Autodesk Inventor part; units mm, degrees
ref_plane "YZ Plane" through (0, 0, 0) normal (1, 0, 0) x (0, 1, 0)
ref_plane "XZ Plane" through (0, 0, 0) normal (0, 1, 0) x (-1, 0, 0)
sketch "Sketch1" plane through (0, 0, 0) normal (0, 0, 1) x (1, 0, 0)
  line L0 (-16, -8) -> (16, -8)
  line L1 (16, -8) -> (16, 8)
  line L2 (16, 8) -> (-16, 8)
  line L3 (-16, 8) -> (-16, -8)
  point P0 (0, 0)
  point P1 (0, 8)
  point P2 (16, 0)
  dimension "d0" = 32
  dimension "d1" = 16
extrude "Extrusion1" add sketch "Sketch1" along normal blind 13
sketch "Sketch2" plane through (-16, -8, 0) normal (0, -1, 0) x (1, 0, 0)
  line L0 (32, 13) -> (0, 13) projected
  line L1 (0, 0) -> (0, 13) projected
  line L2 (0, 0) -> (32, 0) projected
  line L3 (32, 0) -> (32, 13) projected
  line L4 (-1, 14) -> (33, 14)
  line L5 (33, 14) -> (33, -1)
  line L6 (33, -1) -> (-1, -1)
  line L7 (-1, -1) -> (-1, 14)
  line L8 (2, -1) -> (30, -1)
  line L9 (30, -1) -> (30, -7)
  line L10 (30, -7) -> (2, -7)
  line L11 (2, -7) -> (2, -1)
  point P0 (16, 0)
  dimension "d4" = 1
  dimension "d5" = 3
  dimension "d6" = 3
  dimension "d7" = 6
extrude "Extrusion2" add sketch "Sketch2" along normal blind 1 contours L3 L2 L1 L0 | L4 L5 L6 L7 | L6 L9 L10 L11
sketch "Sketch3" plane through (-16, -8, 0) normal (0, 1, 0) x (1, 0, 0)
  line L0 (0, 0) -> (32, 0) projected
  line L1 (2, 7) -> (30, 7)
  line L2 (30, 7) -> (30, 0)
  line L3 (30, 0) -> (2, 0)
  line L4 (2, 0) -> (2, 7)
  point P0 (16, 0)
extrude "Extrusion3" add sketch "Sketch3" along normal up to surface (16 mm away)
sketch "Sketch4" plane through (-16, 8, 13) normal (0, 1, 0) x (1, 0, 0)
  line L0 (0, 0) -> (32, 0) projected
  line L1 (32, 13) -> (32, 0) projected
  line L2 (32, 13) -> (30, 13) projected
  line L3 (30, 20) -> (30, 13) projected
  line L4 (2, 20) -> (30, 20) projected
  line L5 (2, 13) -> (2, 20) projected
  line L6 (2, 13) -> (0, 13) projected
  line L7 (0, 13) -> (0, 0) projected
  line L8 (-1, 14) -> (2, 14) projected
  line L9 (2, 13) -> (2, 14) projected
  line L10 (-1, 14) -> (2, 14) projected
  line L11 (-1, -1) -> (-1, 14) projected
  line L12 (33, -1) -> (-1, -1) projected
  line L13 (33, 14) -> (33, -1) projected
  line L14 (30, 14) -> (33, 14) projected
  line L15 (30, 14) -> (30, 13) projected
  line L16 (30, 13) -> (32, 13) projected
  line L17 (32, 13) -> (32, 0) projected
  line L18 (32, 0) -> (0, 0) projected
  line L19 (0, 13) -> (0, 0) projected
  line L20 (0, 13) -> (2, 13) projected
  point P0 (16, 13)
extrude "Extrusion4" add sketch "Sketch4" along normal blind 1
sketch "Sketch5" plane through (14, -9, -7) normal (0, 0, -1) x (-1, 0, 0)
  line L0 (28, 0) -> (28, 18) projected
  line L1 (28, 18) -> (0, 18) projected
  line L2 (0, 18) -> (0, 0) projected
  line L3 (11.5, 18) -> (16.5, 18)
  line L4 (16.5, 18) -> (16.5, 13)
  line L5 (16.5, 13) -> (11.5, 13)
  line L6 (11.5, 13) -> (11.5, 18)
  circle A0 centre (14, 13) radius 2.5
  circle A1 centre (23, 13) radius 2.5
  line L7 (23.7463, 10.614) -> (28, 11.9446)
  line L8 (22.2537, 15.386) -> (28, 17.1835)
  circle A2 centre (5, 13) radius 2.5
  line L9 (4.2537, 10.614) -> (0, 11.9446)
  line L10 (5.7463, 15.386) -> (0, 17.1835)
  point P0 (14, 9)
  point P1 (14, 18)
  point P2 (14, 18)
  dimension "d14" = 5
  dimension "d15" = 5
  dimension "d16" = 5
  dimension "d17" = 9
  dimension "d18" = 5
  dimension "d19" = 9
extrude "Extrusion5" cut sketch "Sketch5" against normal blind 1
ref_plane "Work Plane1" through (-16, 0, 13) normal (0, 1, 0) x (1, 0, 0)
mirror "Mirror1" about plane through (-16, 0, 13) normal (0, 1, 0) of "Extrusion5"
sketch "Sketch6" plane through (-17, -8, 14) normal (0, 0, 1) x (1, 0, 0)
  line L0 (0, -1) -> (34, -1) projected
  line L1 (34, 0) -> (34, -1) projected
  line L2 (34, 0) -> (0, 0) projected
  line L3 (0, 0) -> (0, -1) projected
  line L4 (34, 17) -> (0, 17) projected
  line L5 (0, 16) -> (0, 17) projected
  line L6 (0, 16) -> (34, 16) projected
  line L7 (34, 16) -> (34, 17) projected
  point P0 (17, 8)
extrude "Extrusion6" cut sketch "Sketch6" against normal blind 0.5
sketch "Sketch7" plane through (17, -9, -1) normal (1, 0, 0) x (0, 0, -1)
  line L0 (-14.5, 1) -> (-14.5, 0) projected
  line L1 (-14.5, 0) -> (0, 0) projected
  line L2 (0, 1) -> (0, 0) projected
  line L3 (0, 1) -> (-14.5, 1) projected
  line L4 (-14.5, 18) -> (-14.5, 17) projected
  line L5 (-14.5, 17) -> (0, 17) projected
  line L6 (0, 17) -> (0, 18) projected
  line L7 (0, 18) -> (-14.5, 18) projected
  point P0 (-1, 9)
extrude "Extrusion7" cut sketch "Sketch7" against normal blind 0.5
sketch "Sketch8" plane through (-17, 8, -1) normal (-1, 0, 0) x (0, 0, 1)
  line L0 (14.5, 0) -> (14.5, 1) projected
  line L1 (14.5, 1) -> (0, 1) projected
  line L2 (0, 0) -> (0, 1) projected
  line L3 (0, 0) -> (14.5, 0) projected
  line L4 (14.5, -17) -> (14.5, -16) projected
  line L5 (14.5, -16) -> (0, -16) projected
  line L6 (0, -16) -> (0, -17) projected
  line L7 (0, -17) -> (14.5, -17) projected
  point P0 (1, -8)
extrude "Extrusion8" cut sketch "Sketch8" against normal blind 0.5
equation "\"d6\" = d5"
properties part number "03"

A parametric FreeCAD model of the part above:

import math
import FreeCAD as App
import Part
import Sketcher
Q = App.Units.Quantity

doc = App.newDocument("Part")
body = doc.addObject("PartDesign::Body", "Body")

sketch1 = body.newObject("Sketcher::SketchObject", "Sketch")
sketch1.AttachmentSupport = (doc.getObject("XY_Plane"), [""])
sketch1.MapMode = "FlatFace"
sketch1.addGeometry(Part.LineSegment(App.Vector(-16, 8, 0), App.Vector(-16, -8, 0)), False)
sketch1.addGeometry(Part.LineSegment(App.Vector(-16, -8, 0), App.Vector(16, -8, 0)), False)
sketch1.addGeometry(Part.LineSegment(App.Vector(16, -8, 0), App.Vector(16, 8, 0)), False)
sketch1.addGeometry(Part.LineSegment(App.Vector(16, 8, 0), App.Vector(-16, 8, 0)), False)
sketch1.addConstraint(Sketcher.Constraint("Coincident", 0, 2, 1, 1))
sketch1.addConstraint(Sketcher.Constraint("Coincident", 1, 2, 2, 1))
sketch1.addConstraint(Sketcher.Constraint("Coincident", 2, 2, 3, 1))
sketch1.addConstraint(Sketcher.Constraint("Coincident", 3, 2, 0, 1))
sketch1.addConstraint(Sketcher.Constraint("Vertical", 0))
sketch1.addConstraint(Sketcher.Constraint("Horizontal", 1))
sketch1.addConstraint(Sketcher.Constraint("Vertical", 2))
sketch1.addConstraint(Sketcher.Constraint("Horizontal", 3))
sketch1.addConstraint(Sketcher.Constraint("Symmetric", 0, 2, 2, 2, -1, 1))
sketch1.addConstraint(Sketcher.Constraint("DistanceX", 1, 1, 1, 2, Q("32 mm")))
sketch1.addConstraint(Sketcher.Constraint("DistanceY", 0, 2, 0, 1, Q("16 mm")))
pad1 = body.newObject("PartDesign::Pad", "Pad")
pad1.Profile = sketch1
pad1.Length = 13

sketch2 = body.newObject("Sketcher::SketchObject", "Sketch001")
sketch2.AttachmentSupport = (doc.getObject("XZ_Plane"), [""])
sketch2.MapMode = "FlatFace"
sketch2.AttachmentOffset = App.Placement(App.Vector(0, 0, 8), App.Rotation())
sketch2.addGeometry(Part.LineSegment(App.Vector(17, 14, 0), App.Vector(-17, 14, 0)), False)
sketch2.addGeometry(Part.LineSegment(App.Vector(-17, 14, 0), App.Vector(-17, -1, 0)), False)
sketch2.addGeometry(Part.LineSegment(App.Vector(-17, -1, 0), App.Vector(-14, -1, 0)), False)
sketch2.addGeometry(Part.LineSegment(App.Vector(-14, -1, 0), App.Vector(-14, -7, 0)), False)
sketch2.addGeometry(Part.LineSegment(App.Vector(-14, -7, 0), App.Vector(14, -7, 0)), False)
sketch2.addGeometry(Part.LineSegment(App.Vector(14, -7, 0), App.Vector(14, -1, 0)), False)
sketch2.addGeometry(Part.LineSegment(App.Vector(14, -1, 0), App.Vector(17, -1, 0)), False)
sketch2.addGeometry(Part.LineSegment(App.Vector(17, -1, 0), App.Vector(17, 14, 0)), False)
sketch2.addConstraint(Sketcher.Constraint("Coincident", 0, 2, 1, 1))
sketch2.addConstraint(Sketcher.Constraint("Coincident", 1, 2, 2, 1))
sketch2.addConstraint(Sketcher.Constraint("Coincident", 2, 2, 3, 1))
sketch2.addConstraint(Sketcher.Constraint("Coincident", 3, 2, 4, 1))
sketch2.addConstraint(Sketcher.Constraint("Coincident", 4, 2, 5, 1))
sketch2.addConstraint(Sketcher.Constraint("Coincident", 5, 2, 6, 1))
sketch2.addConstraint(Sketcher.Constraint("Coincident", 6, 2, 7, 1))
sketch2.addConstraint(Sketcher.Constraint("Coincident", 7, 2, 0, 1))
sketch2.addConstraint(Sketcher.Constraint("Horizontal", 0))
sketch2.addConstraint(Sketcher.Constraint("Vertical", 1))
sketch2.addConstraint(Sketcher.Constraint("Horizontal", 2))
sketch2.addConstraint(Sketcher.Constraint("Vertical", 3))
sketch2.addConstraint(Sketcher.Constraint("Horizontal", 4))
sketch2.addConstraint(Sketcher.Constraint("Vertical", 5))
sketch2.addConstraint(Sketcher.Constraint("Horizontal", 6))
sketch2.addConstraint(Sketcher.Constraint("Vertical", 7))
sketch2.addConstraint(Sketcher.Constraint("Symmetric", 2, 2, 5, 2, -2))
sketch2.addConstraint(Sketcher.Constraint("Equal", 2, 6))
sketch2.addConstraint(Sketcher.Constraint("DistanceX", 2, 1, 2, 2, Q("3 mm")))
sketch2.addConstraint(Sketcher.Constraint("DistanceY", 3, 2, 3, 1, Q("6 mm")))
sketch2.addConstraint(Sketcher.Constraint("DistanceY", 1, 2, -1, 1, Q("1 mm")))
sketch2.addConstraint(Sketcher.Constraint("DistanceX", 0, 2, 0, 1, Q("34 mm")))
sketch2.addConstraint(Sketcher.Constraint("DistanceY", 1, 2, 1, 1, Q("15 mm")))
pad2 = body.newObject("PartDesign::Pad", "Pad001")
pad2.Profile = sketch2
pad2.Length = 1

sketch3 = body.newObject("Sketcher::SketchObject", "Sketch002")
sketch3.AttachmentSupport = (doc.getObject("XZ_Plane"), [""])
sketch3.MapMode = "FlatFace"
sketch3.AttachmentOffset = App.Placement(App.Vector(0, 0, 8), App.Rotation())
sketch3.addGeometry(Part.LineSegment(App.Vector(-14, -7, 0), App.Vector(-14, 0, 0)), False)
sketch3.addGeometry(Part.LineSegment(App.Vector(-14, 0, 0), App.Vector(14, 0, 0)), False)
sketch3.addGeometry(Part.LineSegment(App.Vector(14, 0, 0), App.Vector(14, -7, 0)), False)
sketch3.addGeometry(Part.LineSegment(App.Vector(14, -7, 0), App.Vector(-14, -7, 0)), False)
sketch3.addConstraint(Sketcher.Constraint("Coincident", 0, 2, 1, 1))
sketch3.addConstraint(Sketcher.Constraint("Coincident", 1, 2, 2, 1))
sketch3.addConstraint(Sketcher.Constraint("Coincident", 2, 2, 3, 1))
sketch3.addConstraint(Sketcher.Constraint("Coincident", 3, 2, 0, 1))
sketch3.addConstraint(Sketcher.Constraint("Vertical", 0))
sketch3.addConstraint(Sketcher.Constraint("Horizontal", 1))
sketch3.addConstraint(Sketcher.Constraint("Vertical", 2))
sketch3.addConstraint(Sketcher.Constraint("Horizontal", 3))
sketch3.addConstraint(Sketcher.Constraint("Symmetric", 0, 2, 1, 2, -1, 1))
sketch3.addConstraint(Sketcher.Constraint("DistanceX", 1, 1, 1, 2, Q("28 mm")))
sketch3.addConstraint(Sketcher.Constraint("DistanceY", 0, 1, 0, 2, Q("7 mm")))
pad3 = body.newObject("PartDesign::Pad", "Pad002")
pad3.Profile = sketch3
pad3.Length = 16
pad3.Reversed = True

sketch4 = body.newObject("Sketcher::SketchObject", "Sketch003")
sketch4.AttachmentSupport = (doc.getObject("XZ_Plane"), [""])
sketch4.MapMode = "FlatFace"
sketch4.AttachmentOffset = App.Placement(App.Vector(0, 0, -8), App.Rotation())
sketch4.addGeometry(Part.LineSegment(App.Vector(-14, -7, 0), App.Vector(-14, -1, 0)), False)
sketch4.addGeometry(Part.LineSegment(App.Vector(-14, -1, 0), App.Vector(-17, -1, 0)), False)
sketch4.addGeometry(Part.LineSegment(App.Vector(-17, -1, 0), App.Vector(-17, 14, 0)), False)
sketch4.addGeometry(Part.LineSegment(App.Vector(-17, 14, 0), App.Vector(17, 14, 0)), False)
sketch4.addGeometry(Part.LineSegment(App.Vector(17, 14, 0), App.Vector(17, -1, 0)), False)
sketch4.addGeometry(Part.LineSegment(App.Vector(17, -1, 0), App.Vector(14, -1, 0)), False)
sketch4.addGeometry(Part.LineSegment(App.Vector(14, -1, 0), App.Vector(14, -7, 0)), False)
sketch4.addGeometry(Part.LineSegment(App.Vector(14, -7, 0), App.Vector(-14, -7, 0)), False)
sketch4.addConstraint(Sketcher.Constraint("Coincident", 0, 2, 1, 1))
sketch4.addConstraint(Sketcher.Constraint("Coincident", 1, 2, 2, 1))
sketch4.addConstraint(Sketcher.Constraint("Coincident", 2, 2, 3, 1))
sketch4.addConstraint(Sketcher.Constraint("Coincident", 3, 2, 4, 1))
sketch4.addConstraint(Sketcher.Constraint("Coincident", 4, 2, 5, 1))
sketch4.addConstraint(Sketcher.Constraint("Coincident", 5, 2, 6, 1))
sketch4.addConstraint(Sketcher.Constraint("Coincident", 6, 2, 7, 1))
sketch4.addConstraint(Sketcher.Constraint("Coincident", 7, 2, 0, 1))
sketch4.addConstraint(Sketcher.Constraint("Vertical", 0))
sketch4.addConstraint(Sketcher.Constraint("Horizontal", 1))
sketch4.addConstraint(Sketcher.Constraint("Vertical", 2))
sketch4.addConstraint(Sketcher.Constraint("Horizontal", 3))
sketch4.addConstraint(Sketcher.Constraint("Vertical", 4))
sketch4.addConstraint(Sketcher.Constraint("Horizontal", 5))
sketch4.addConstraint(Sketcher.Constraint("Vertical", 6))
sketch4.addConstraint(Sketcher.Constraint("Horizontal", 7))
sketch4.addConstraint(Sketcher.Constraint("Symmetric", 1, 2, 4, 2, -2))
sketch4.addConstraint(Sketcher.Constraint("Equal", 1, 5))
sketch4.addConstraint(Sketcher.Constraint("DistanceX", 1, 2, 1, 1, Q("3 mm")))
sketch4.addConstraint(Sketcher.Constraint("DistanceX", 3, 1, 3, 2, Q("34 mm")))
sketch4.addConstraint(Sketcher.Constraint("DistanceY", 0, 1, 0, 2, Q("6 mm")))
sketch4.addConstraint(Sketcher.Constraint("DistanceY", 2, 1, 2, 2, Q("15 mm")))
sketch4.addConstraint(Sketcher.Constraint("DistanceY", 0, 2, -1, 1, Q("1 mm")))
pad4 = body.newObject("PartDesign::Pad", "Pad003")
pad4.Profile = sketch4
pad4.Length = 1
pad4.Reversed = True

sketch5 = body.newObject("Sketcher::SketchObject", "Sketch004")
sketch5.AttachmentSupport = (doc.getObject("XY_Plane"), [""])
sketch5.MapMode = "FlatFace"
sketch5.AttachmentOffset = App.Placement(App.Vector(0, 0, -7), App.Rotation())
sketch5.addGeometry(Part.LineSegment(App.Vector(-9.7, 1.6, 0), App.Vector(-14, 2.9, 0)), False)
sketch5.addGeometry(Part.LineSegment(App.Vector(-14, 2.9, 0), App.Vector(-14, 8.2, 0)), False)
sketch5.addGeometry(Part.LineSegment(App.Vector(-14, 8.2, 0), App.Vector(-8.3, 6.4, 0)), False)
sketch5.addGeometry(Part.ArcOfCircle(Part.Circle(App.Vector(-9, 4, 0), App.Vector(0, 0, 1), 2.5), math.radians(-107), math.radians(73)), False)
sketch5.addGeometry(Part.LineSegment(App.Vector(8.3, 6.4, 0), App.Vector(14, 8.2, 0)), False)
sketch5.addGeometry(Part.LineSegment(App.Vector(14, 8.2, 0), App.Vector(14, 2.9, 0)), False)
sketch5.addGeometry(Part.LineSegment(App.Vector(14, 2.9, 0), App.Vector(9.7, 1.6, 0)), False)
sketch5.addGeometry(Part.ArcOfCircle(Part.Circle(App.Vector(9, 4, 0), App.Vector(0, 0, 1), 2.5), math.radians(107), math.radians(287)), False)
sketch5.addGeometry(Part.LineSegment(App.Vector(-2.5, 4, 0), App.Vector(-2.5, 9, 0)), False)
sketch5.addGeometry(Part.LineSegment(App.Vector(-2.5, 9, 0), App.Vector(2.5, 9, 0)), False)
sketch5.addGeometry(Part.LineSegment(App.Vector(2.5, 9, 0), App.Vector(2.5, 4, 0)), False)
sketch5.addGeometry(Part.ArcOfCircle(Part.Circle(App.Vector(0, 4, 0), App.Vector(0, 0, 1), 2.5), math.radians(180), math.radians(360)), False)
sketch5.addConstraint(Sketcher.Constraint("Coincident", 0, 2, 1, 1))
sketch5.addConstraint(Sketcher.Constraint("Coincident", 1, 2, 2, 1))
sketch5.addConstraint(Sketcher.Constraint("Tangent", 2, 2, 3, 2))
sketch5.addConstraint(Sketcher.Constraint("Tangent", 3, 1, 0, 1))
sketch5.addConstraint(Sketcher.Constraint("Coincident", 4, 2, 5, 1))
sketch5.addConstraint(Sketcher.Constraint("Coincident", 5, 2, 6, 1))
sketch5.addConstraint(Sketcher.Constraint("Tangent", 6, 2, 7, 2))
sketch5.addConstraint(Sketcher.Constraint("Tangent", 7, 1, 4, 1))
sketch5.addConstraint(Sketcher.Constraint("Coincident", 8, 2, 9, 1))
sketch5.addConstraint(Sketcher.Constraint("Coincident", 9, 2, 10, 1))
sketch5.addConstraint(Sketcher.Constraint("Tangent", 10, 2, 11, 2))
sketch5.addConstraint(Sketcher.Constraint("Tangent", 11, 1, 8, 1))
sketch5.addConstraint(Sketcher.Constraint("Vertical", 1))
sketch5.addConstraint(Sketcher.Constraint("Vertical", 5))
sketch5.addConstraint(Sketcher.Constraint("Vertical", 8))
sketch5.addConstraint(Sketcher.Constraint("Horizontal", 9))
sketch5.addConstraint(Sketcher.Constraint("Vertical", 10))
sketch5.addConstraint(Sketcher.Constraint("Equal", 3, 7))
sketch5.addConstraint(Sketcher.Constraint("Equal", 7, 11))
sketch5.addConstraint(Sketcher.Constraint("Symmetric", 3, 3, 7, 3, -2))
sketch5.addConstraint(Sketcher.Constraint("Symmetric", 1, 2, 4, 2, -2))
sketch5.addConstraint(Sketcher.Constraint("PointOnObject", 11, 3, -2))
sketch5.addConstraint(Sketcher.Constraint("Parallel", 0, 2))
sketch5.addConstraint(Sketcher.Constraint("Parallel", 4, 6))
sketch5.addConstraint(Sketcher.Constraint("Horizontal", 7, 3, 11, 3))
sketch5.addConstraint(Sketcher.Constraint("Equal", 9, 8))
sketch5.addConstraint(Sketcher.Constraint("Radius", 3, Q("2.5 mm")))
sketch5.addConstraint(Sketcher.Constraint("DistanceX", 3, 3, -1, 1, Q("9 mm")))
sketch5.addConstraint(Sketcher.Constraint("DistanceY", -1, 1, 8, 2, Q("9 mm")))
sketch5.addConstraint(Sketcher.Constraint("DistanceX", 0, 2, 3, 3, Q("5 mm")))
sketch5.addConstraint(Sketcher.Constraint("Angle", 0, Q("162.6298 deg")))
pocket1 = body.newObject("PartDesign::Pocket", "Pocket")
pocket1.Profile = sketch5
pocket1.Length = 1
pocket1.Reversed = True
doc.recompute()

mirrored = body.newObject("PartDesign::Mirrored", "Mirrored")
mirrored.Originals = [pocket1]
mirrored.MirrorPlane = (doc.getObject("XZ_Plane"), [""])
body.Tip = mirrored

sketch6 = body.newObject("Sketcher::SketchObject", "Sketch005")
sketch6.AttachmentSupport = (doc.getObject("XY_Plane"), [""])
sketch6.MapMode = "FlatFace"
sketch6.AttachmentOffset = App.Placement(App.Vector(0, 0, 14), App.Rotation())
sketch6.addGeometry(Part.LineSegment(App.Vector(-17, -8, 0), App.Vector(-17, -9, 0)), False)
sketch6.addGeometry(Part.LineSegment(App.Vector(-17, -9, 0), App.Vector(17, -9, 0)), False)
sketch6.addGeometry(Part.LineSegment(App.Vector(17, -9, 0), App.Vector(17, -8, 0)), False)
sketch6.addGeometry(Part.LineSegment(App.Vector(17, -8, 0), App.Vector(-17, -8, 0)), False)
sketch6.addGeometry(Part.LineSegment(App.Vector(17, 8, 0), App.Vector(17, 9, 0)), False)
sketch6.addGeometry(Part.LineSegment(App.Vector(17, 9, 0), App.Vector(-17, 9, 0)), False)
sketch6.addGeometry(Part.LineSegment(App.Vector(-17, 9, 0), App.Vector(-17, 8, 0)), False)
sketch6.addGeometry(Part.LineSegment(App.Vector(-17, 8, 0), App.Vector(17, 8, 0)), False)
sketch6.addConstraint(Sketcher.Constraint("Coincident", 0, 2, 1, 1))
sketch6.addConstraint(Sketcher.Constraint("Coincident", 1, 2, 2, 1))
sketch6.addConstraint(Sketcher.Constraint("Coincident", 2, 2, 3, 1))
sketch6.addConstraint(Sketcher.Constraint("Coincident", 3, 2, 0, 1))
sketch6.addConstraint(Sketcher.Constraint("Coincident", 4, 2, 5, 1))
sketch6.addConstraint(Sketcher.Constraint("Coincident", 5, 2, 6, 1))
sketch6.addConstraint(Sketcher.Constraint("Coincident", 6, 2, 7, 1))
sketch6.addConstraint(Sketcher.Constraint("Coincident", 7, 2, 4, 1))
sketch6.addConstraint(Sketcher.Constraint("Vertical", 0))
sketch6.addConstraint(Sketcher.Constraint("Horizontal", 1))
sketch6.addConstraint(Sketcher.Constraint("Vertical", 2))
sketch6.addConstraint(Sketcher.Constraint("Horizontal", 3))
sketch6.addConstraint(Sketcher.Constraint("Vertical", 4))
sketch6.addConstraint(Sketcher.Constraint("Horizontal", 5))
sketch6.addConstraint(Sketcher.Constraint("Vertical", 6))
sketch6.addConstraint(Sketcher.Constraint("Horizontal", 7))
sketch6.addConstraint(Sketcher.Constraint("Symmetric", 0, 2, 4, 2, -1, 1))
sketch6.addConstraint(Sketcher.Constraint("Symmetric", 2, 2, 6, 2, -1, 1))
sketch6.addConstraint(Sketcher.Constraint("Vertical", 2, 2, 4, 2))
sketch6.addConstraint(Sketcher.Constraint("DistanceX", 1, 1, 1, 2, Q("34 mm")))
sketch6.addConstraint(Sketcher.Constraint("DistanceY", 0, 2, 0, 1, Q("1 mm")))
sketch6.addConstraint(Sketcher.Constraint("DistanceY", 0, 2, -1, 1, Q("9 mm")))
pocket2 = body.newObject("PartDesign::Pocket", "Pocket001")
pocket2.Profile = sketch6
pocket2.Length = 0.5

sketch7 = body.newObject("Sketcher::SketchObject", "Sketch006")
sketch7.AttachmentSupport = (doc.getObject("YZ_Plane"), [""])
sketch7.MapMode = "FlatFace"
sketch7.AttachmentOffset = App.Placement(App.Vector(0, 0, 17), App.Rotation())
sketch7.addGeometry(Part.LineSegment(App.Vector(-8, -1, 0), App.Vector(-8, 13.5, 0)), False)
sketch7.addGeometry(Part.LineSegment(App.Vector(-8, 13.5, 0), App.Vector(-9, 13.5, 0)), False)
sketch7.addGeometry(Part.LineSegment(App.Vector(-9, 13.5, 0), App.Vector(-9, -1, 0)), False)
sketch7.addGeometry(Part.LineSegment(App.Vector(-9, -1, 0), App.Vector(-8, -1, 0)), False)
sketch7.addGeometry(Part.LineSegment(App.Vector(9, -1, 0), App.Vector(9, 13.5, 0)), False)
sketch7.addGeometry(Part.LineSegment(App.Vector(9, 13.5, 0), App.Vector(8, 13.5, 0)), False)
sketch7.addGeometry(Part.LineSegment(App.Vector(8, 13.5, 0), App.Vector(8, -1, 0)), False)
sketch7.addGeometry(Part.LineSegment(App.Vector(8, -1, 0), App.Vector(9, -1, 0)), False)
sketch7.addConstraint(Sketcher.Constraint("Coincident", 0, 2, 1, 1))
sketch7.addConstraint(Sketcher.Constraint("Coincident", 1, 2, 2, 1))
sketch7.addConstraint(Sketcher.Constraint("Coincident", 2, 2, 3, 1))
sketch7.addConstraint(Sketcher.Constraint("Coincident", 3, 2, 0, 1))
sketch7.addConstraint(Sketcher.Constraint("Coincident", 4, 2, 5, 1))
sketch7.addConstraint(Sketcher.Constraint("Coincident", 5, 2, 6, 1))
sketch7.addConstraint(Sketcher.Constraint("Coincident", 6, 2, 7, 1))
sketch7.addConstraint(Sketcher.Constraint("Coincident", 7, 2, 4, 1))
sketch7.addConstraint(Sketcher.Constraint("Vertical", 0))
sketch7.addConstraint(Sketcher.Constraint("Horizontal", 1))
sketch7.addConstraint(Sketcher.Constraint("Vertical", 2))
sketch7.addConstraint(Sketcher.Constraint("Horizontal", 3))
sketch7.addConstraint(Sketcher.Constraint("Vertical", 4))
sketch7.addConstraint(Sketcher.Constraint("Horizontal", 5))
sketch7.addConstraint(Sketcher.Constraint("Vertical", 6))
sketch7.addConstraint(Sketcher.Constraint("Horizontal", 7))
sketch7.addConstraint(Sketcher.Constraint("Symmetric", 1, 2, 4, 2, -2))
sketch7.addConstraint(Sketcher.Constraint("Symmetric", 3, 2, 6, 2, -2))
sketch7.addConstraint(Sketcher.Constraint("DistanceX", 1, 2, 1, 1, Q("1 mm")))
sketch7.addConstraint(Sketcher.Constraint("DistanceY", 0, 1, 0, 2, Q("14.5 mm")))
sketch7.addConstraint(Sketcher.Constraint("DistanceX", 0, 2, -1, 1, Q("8 mm")))
sketch7.addConstraint(Sketcher.Constraint("DistanceY", 2, 2, -1, 1, Q("1 mm")))
pocket3 = body.newObject("PartDesign::Pocket", "Pocket002")
pocket3.Profile = sketch7
pocket3.Length = 0.5

sketch8 = body.newObject("Sketcher::SketchObject", "Sketch007")
sketch8.AttachmentSupport = (doc.getObject("YZ_Plane"), [""])
sketch8.MapMode = "FlatFace"
sketch8.AttachmentOffset = App.Placement(App.Vector(0, 0, -17), App.Rotation())
sketch8.addGeometry(Part.LineSegment(App.Vector(8, -1, 0), App.Vector(8, 13.5, 0)), False)
sketch8.addGeometry(Part.LineSegment(App.Vector(8, 13.5, 0), App.Vector(9, 13.5, 0)), False)
sketch8.addGeometry(Part.LineSegment(App.Vector(9, 13.5, 0), App.Vector(9, -1, 0)), False)
sketch8.addGeometry(Part.LineSegment(App.Vector(9, -1, 0), App.Vector(8, -1, 0)), False)
sketch8.addGeometry(Part.LineSegment(App.Vector(-9, -1, 0), App.Vector(-9, 13.5, 0)), False)
sketch8.addGeometry(Part.LineSegment(App.Vector(-9, 13.5, 0), App.Vector(-8, 13.5, 0)), False)
sketch8.addGeometry(Part.LineSegment(App.Vector(-8, 13.5, 0), App.Vector(-8, -1, 0)), False)
sketch8.addGeometry(Part.LineSegment(App.Vector(-8, -1, 0), App.Vector(-9, -1, 0)), False)
sketch8.addConstraint(Sketcher.Constraint("Coincident", 0, 2, 1, 1))
sketch8.addConstraint(Sketcher.Constraint("Coincident", 1, 2, 2, 1))
sketch8.addConstraint(Sketcher.Constraint("Coincident", 2, 2, 3, 1))
sketch8.addConstraint(Sketcher.Constraint("Coincident", 3, 2, 0, 1))
sketch8.addConstraint(Sketcher.Constraint("Coincident", 4, 2, 5, 1))
sketch8.addConstraint(Sketcher.Constraint("Coincident", 5, 2, 6, 1))
sketch8.addConstraint(Sketcher.Constraint("Coincident", 6, 2, 7, 1))
sketch8.addConstraint(Sketcher.Constraint("Coincident", 7, 2, 4, 1))
sketch8.addConstraint(Sketcher.Constraint("Vertical", 0))
sketch8.addConstraint(Sketcher.Constraint("Horizontal", 1))
sketch8.addConstraint(Sketcher.Constraint("Vertical", 2))
sketch8.addConstraint(Sketcher.Constraint("Horizontal", 3))
sketch8.addConstraint(Sketcher.Constraint("Vertical", 4))
sketch8.addConstraint(Sketcher.Constraint("Horizontal", 5))
sketch8.addConstraint(Sketcher.Constraint("Vertical", 6))
sketch8.addConstraint(Sketcher.Constraint("Horizontal", 7))
sketch8.addConstraint(Sketcher.Constraint("Symmetric", 1, 2, 4, 2, -2))
sketch8.addConstraint(Sketcher.Constraint("Symmetric", 3, 2, 6, 2, -2))
sketch8.addConstraint(Sketcher.Constraint("DistanceX", 1, 1, 1, 2, Q("1 mm")))
sketch8.addConstraint(Sketcher.Constraint("DistanceY", 0, 1, 0, 2, Q("14.5 mm")))
sketch8.addConstraint(Sketcher.Constraint("DistanceX", -1, 1, 0, 2, Q("8 mm")))
sketch8.addConstraint(Sketcher.Constraint("DistanceY", 2, 2, -1, 1, Q("1 mm")))
pocket4 = body.newObject("PartDesign::Pocket", "Pocket003")
pocket4.Profile = sketch8
pocket4.Length = 0.5
pocket4.Reversed = True

doc.recompute()
